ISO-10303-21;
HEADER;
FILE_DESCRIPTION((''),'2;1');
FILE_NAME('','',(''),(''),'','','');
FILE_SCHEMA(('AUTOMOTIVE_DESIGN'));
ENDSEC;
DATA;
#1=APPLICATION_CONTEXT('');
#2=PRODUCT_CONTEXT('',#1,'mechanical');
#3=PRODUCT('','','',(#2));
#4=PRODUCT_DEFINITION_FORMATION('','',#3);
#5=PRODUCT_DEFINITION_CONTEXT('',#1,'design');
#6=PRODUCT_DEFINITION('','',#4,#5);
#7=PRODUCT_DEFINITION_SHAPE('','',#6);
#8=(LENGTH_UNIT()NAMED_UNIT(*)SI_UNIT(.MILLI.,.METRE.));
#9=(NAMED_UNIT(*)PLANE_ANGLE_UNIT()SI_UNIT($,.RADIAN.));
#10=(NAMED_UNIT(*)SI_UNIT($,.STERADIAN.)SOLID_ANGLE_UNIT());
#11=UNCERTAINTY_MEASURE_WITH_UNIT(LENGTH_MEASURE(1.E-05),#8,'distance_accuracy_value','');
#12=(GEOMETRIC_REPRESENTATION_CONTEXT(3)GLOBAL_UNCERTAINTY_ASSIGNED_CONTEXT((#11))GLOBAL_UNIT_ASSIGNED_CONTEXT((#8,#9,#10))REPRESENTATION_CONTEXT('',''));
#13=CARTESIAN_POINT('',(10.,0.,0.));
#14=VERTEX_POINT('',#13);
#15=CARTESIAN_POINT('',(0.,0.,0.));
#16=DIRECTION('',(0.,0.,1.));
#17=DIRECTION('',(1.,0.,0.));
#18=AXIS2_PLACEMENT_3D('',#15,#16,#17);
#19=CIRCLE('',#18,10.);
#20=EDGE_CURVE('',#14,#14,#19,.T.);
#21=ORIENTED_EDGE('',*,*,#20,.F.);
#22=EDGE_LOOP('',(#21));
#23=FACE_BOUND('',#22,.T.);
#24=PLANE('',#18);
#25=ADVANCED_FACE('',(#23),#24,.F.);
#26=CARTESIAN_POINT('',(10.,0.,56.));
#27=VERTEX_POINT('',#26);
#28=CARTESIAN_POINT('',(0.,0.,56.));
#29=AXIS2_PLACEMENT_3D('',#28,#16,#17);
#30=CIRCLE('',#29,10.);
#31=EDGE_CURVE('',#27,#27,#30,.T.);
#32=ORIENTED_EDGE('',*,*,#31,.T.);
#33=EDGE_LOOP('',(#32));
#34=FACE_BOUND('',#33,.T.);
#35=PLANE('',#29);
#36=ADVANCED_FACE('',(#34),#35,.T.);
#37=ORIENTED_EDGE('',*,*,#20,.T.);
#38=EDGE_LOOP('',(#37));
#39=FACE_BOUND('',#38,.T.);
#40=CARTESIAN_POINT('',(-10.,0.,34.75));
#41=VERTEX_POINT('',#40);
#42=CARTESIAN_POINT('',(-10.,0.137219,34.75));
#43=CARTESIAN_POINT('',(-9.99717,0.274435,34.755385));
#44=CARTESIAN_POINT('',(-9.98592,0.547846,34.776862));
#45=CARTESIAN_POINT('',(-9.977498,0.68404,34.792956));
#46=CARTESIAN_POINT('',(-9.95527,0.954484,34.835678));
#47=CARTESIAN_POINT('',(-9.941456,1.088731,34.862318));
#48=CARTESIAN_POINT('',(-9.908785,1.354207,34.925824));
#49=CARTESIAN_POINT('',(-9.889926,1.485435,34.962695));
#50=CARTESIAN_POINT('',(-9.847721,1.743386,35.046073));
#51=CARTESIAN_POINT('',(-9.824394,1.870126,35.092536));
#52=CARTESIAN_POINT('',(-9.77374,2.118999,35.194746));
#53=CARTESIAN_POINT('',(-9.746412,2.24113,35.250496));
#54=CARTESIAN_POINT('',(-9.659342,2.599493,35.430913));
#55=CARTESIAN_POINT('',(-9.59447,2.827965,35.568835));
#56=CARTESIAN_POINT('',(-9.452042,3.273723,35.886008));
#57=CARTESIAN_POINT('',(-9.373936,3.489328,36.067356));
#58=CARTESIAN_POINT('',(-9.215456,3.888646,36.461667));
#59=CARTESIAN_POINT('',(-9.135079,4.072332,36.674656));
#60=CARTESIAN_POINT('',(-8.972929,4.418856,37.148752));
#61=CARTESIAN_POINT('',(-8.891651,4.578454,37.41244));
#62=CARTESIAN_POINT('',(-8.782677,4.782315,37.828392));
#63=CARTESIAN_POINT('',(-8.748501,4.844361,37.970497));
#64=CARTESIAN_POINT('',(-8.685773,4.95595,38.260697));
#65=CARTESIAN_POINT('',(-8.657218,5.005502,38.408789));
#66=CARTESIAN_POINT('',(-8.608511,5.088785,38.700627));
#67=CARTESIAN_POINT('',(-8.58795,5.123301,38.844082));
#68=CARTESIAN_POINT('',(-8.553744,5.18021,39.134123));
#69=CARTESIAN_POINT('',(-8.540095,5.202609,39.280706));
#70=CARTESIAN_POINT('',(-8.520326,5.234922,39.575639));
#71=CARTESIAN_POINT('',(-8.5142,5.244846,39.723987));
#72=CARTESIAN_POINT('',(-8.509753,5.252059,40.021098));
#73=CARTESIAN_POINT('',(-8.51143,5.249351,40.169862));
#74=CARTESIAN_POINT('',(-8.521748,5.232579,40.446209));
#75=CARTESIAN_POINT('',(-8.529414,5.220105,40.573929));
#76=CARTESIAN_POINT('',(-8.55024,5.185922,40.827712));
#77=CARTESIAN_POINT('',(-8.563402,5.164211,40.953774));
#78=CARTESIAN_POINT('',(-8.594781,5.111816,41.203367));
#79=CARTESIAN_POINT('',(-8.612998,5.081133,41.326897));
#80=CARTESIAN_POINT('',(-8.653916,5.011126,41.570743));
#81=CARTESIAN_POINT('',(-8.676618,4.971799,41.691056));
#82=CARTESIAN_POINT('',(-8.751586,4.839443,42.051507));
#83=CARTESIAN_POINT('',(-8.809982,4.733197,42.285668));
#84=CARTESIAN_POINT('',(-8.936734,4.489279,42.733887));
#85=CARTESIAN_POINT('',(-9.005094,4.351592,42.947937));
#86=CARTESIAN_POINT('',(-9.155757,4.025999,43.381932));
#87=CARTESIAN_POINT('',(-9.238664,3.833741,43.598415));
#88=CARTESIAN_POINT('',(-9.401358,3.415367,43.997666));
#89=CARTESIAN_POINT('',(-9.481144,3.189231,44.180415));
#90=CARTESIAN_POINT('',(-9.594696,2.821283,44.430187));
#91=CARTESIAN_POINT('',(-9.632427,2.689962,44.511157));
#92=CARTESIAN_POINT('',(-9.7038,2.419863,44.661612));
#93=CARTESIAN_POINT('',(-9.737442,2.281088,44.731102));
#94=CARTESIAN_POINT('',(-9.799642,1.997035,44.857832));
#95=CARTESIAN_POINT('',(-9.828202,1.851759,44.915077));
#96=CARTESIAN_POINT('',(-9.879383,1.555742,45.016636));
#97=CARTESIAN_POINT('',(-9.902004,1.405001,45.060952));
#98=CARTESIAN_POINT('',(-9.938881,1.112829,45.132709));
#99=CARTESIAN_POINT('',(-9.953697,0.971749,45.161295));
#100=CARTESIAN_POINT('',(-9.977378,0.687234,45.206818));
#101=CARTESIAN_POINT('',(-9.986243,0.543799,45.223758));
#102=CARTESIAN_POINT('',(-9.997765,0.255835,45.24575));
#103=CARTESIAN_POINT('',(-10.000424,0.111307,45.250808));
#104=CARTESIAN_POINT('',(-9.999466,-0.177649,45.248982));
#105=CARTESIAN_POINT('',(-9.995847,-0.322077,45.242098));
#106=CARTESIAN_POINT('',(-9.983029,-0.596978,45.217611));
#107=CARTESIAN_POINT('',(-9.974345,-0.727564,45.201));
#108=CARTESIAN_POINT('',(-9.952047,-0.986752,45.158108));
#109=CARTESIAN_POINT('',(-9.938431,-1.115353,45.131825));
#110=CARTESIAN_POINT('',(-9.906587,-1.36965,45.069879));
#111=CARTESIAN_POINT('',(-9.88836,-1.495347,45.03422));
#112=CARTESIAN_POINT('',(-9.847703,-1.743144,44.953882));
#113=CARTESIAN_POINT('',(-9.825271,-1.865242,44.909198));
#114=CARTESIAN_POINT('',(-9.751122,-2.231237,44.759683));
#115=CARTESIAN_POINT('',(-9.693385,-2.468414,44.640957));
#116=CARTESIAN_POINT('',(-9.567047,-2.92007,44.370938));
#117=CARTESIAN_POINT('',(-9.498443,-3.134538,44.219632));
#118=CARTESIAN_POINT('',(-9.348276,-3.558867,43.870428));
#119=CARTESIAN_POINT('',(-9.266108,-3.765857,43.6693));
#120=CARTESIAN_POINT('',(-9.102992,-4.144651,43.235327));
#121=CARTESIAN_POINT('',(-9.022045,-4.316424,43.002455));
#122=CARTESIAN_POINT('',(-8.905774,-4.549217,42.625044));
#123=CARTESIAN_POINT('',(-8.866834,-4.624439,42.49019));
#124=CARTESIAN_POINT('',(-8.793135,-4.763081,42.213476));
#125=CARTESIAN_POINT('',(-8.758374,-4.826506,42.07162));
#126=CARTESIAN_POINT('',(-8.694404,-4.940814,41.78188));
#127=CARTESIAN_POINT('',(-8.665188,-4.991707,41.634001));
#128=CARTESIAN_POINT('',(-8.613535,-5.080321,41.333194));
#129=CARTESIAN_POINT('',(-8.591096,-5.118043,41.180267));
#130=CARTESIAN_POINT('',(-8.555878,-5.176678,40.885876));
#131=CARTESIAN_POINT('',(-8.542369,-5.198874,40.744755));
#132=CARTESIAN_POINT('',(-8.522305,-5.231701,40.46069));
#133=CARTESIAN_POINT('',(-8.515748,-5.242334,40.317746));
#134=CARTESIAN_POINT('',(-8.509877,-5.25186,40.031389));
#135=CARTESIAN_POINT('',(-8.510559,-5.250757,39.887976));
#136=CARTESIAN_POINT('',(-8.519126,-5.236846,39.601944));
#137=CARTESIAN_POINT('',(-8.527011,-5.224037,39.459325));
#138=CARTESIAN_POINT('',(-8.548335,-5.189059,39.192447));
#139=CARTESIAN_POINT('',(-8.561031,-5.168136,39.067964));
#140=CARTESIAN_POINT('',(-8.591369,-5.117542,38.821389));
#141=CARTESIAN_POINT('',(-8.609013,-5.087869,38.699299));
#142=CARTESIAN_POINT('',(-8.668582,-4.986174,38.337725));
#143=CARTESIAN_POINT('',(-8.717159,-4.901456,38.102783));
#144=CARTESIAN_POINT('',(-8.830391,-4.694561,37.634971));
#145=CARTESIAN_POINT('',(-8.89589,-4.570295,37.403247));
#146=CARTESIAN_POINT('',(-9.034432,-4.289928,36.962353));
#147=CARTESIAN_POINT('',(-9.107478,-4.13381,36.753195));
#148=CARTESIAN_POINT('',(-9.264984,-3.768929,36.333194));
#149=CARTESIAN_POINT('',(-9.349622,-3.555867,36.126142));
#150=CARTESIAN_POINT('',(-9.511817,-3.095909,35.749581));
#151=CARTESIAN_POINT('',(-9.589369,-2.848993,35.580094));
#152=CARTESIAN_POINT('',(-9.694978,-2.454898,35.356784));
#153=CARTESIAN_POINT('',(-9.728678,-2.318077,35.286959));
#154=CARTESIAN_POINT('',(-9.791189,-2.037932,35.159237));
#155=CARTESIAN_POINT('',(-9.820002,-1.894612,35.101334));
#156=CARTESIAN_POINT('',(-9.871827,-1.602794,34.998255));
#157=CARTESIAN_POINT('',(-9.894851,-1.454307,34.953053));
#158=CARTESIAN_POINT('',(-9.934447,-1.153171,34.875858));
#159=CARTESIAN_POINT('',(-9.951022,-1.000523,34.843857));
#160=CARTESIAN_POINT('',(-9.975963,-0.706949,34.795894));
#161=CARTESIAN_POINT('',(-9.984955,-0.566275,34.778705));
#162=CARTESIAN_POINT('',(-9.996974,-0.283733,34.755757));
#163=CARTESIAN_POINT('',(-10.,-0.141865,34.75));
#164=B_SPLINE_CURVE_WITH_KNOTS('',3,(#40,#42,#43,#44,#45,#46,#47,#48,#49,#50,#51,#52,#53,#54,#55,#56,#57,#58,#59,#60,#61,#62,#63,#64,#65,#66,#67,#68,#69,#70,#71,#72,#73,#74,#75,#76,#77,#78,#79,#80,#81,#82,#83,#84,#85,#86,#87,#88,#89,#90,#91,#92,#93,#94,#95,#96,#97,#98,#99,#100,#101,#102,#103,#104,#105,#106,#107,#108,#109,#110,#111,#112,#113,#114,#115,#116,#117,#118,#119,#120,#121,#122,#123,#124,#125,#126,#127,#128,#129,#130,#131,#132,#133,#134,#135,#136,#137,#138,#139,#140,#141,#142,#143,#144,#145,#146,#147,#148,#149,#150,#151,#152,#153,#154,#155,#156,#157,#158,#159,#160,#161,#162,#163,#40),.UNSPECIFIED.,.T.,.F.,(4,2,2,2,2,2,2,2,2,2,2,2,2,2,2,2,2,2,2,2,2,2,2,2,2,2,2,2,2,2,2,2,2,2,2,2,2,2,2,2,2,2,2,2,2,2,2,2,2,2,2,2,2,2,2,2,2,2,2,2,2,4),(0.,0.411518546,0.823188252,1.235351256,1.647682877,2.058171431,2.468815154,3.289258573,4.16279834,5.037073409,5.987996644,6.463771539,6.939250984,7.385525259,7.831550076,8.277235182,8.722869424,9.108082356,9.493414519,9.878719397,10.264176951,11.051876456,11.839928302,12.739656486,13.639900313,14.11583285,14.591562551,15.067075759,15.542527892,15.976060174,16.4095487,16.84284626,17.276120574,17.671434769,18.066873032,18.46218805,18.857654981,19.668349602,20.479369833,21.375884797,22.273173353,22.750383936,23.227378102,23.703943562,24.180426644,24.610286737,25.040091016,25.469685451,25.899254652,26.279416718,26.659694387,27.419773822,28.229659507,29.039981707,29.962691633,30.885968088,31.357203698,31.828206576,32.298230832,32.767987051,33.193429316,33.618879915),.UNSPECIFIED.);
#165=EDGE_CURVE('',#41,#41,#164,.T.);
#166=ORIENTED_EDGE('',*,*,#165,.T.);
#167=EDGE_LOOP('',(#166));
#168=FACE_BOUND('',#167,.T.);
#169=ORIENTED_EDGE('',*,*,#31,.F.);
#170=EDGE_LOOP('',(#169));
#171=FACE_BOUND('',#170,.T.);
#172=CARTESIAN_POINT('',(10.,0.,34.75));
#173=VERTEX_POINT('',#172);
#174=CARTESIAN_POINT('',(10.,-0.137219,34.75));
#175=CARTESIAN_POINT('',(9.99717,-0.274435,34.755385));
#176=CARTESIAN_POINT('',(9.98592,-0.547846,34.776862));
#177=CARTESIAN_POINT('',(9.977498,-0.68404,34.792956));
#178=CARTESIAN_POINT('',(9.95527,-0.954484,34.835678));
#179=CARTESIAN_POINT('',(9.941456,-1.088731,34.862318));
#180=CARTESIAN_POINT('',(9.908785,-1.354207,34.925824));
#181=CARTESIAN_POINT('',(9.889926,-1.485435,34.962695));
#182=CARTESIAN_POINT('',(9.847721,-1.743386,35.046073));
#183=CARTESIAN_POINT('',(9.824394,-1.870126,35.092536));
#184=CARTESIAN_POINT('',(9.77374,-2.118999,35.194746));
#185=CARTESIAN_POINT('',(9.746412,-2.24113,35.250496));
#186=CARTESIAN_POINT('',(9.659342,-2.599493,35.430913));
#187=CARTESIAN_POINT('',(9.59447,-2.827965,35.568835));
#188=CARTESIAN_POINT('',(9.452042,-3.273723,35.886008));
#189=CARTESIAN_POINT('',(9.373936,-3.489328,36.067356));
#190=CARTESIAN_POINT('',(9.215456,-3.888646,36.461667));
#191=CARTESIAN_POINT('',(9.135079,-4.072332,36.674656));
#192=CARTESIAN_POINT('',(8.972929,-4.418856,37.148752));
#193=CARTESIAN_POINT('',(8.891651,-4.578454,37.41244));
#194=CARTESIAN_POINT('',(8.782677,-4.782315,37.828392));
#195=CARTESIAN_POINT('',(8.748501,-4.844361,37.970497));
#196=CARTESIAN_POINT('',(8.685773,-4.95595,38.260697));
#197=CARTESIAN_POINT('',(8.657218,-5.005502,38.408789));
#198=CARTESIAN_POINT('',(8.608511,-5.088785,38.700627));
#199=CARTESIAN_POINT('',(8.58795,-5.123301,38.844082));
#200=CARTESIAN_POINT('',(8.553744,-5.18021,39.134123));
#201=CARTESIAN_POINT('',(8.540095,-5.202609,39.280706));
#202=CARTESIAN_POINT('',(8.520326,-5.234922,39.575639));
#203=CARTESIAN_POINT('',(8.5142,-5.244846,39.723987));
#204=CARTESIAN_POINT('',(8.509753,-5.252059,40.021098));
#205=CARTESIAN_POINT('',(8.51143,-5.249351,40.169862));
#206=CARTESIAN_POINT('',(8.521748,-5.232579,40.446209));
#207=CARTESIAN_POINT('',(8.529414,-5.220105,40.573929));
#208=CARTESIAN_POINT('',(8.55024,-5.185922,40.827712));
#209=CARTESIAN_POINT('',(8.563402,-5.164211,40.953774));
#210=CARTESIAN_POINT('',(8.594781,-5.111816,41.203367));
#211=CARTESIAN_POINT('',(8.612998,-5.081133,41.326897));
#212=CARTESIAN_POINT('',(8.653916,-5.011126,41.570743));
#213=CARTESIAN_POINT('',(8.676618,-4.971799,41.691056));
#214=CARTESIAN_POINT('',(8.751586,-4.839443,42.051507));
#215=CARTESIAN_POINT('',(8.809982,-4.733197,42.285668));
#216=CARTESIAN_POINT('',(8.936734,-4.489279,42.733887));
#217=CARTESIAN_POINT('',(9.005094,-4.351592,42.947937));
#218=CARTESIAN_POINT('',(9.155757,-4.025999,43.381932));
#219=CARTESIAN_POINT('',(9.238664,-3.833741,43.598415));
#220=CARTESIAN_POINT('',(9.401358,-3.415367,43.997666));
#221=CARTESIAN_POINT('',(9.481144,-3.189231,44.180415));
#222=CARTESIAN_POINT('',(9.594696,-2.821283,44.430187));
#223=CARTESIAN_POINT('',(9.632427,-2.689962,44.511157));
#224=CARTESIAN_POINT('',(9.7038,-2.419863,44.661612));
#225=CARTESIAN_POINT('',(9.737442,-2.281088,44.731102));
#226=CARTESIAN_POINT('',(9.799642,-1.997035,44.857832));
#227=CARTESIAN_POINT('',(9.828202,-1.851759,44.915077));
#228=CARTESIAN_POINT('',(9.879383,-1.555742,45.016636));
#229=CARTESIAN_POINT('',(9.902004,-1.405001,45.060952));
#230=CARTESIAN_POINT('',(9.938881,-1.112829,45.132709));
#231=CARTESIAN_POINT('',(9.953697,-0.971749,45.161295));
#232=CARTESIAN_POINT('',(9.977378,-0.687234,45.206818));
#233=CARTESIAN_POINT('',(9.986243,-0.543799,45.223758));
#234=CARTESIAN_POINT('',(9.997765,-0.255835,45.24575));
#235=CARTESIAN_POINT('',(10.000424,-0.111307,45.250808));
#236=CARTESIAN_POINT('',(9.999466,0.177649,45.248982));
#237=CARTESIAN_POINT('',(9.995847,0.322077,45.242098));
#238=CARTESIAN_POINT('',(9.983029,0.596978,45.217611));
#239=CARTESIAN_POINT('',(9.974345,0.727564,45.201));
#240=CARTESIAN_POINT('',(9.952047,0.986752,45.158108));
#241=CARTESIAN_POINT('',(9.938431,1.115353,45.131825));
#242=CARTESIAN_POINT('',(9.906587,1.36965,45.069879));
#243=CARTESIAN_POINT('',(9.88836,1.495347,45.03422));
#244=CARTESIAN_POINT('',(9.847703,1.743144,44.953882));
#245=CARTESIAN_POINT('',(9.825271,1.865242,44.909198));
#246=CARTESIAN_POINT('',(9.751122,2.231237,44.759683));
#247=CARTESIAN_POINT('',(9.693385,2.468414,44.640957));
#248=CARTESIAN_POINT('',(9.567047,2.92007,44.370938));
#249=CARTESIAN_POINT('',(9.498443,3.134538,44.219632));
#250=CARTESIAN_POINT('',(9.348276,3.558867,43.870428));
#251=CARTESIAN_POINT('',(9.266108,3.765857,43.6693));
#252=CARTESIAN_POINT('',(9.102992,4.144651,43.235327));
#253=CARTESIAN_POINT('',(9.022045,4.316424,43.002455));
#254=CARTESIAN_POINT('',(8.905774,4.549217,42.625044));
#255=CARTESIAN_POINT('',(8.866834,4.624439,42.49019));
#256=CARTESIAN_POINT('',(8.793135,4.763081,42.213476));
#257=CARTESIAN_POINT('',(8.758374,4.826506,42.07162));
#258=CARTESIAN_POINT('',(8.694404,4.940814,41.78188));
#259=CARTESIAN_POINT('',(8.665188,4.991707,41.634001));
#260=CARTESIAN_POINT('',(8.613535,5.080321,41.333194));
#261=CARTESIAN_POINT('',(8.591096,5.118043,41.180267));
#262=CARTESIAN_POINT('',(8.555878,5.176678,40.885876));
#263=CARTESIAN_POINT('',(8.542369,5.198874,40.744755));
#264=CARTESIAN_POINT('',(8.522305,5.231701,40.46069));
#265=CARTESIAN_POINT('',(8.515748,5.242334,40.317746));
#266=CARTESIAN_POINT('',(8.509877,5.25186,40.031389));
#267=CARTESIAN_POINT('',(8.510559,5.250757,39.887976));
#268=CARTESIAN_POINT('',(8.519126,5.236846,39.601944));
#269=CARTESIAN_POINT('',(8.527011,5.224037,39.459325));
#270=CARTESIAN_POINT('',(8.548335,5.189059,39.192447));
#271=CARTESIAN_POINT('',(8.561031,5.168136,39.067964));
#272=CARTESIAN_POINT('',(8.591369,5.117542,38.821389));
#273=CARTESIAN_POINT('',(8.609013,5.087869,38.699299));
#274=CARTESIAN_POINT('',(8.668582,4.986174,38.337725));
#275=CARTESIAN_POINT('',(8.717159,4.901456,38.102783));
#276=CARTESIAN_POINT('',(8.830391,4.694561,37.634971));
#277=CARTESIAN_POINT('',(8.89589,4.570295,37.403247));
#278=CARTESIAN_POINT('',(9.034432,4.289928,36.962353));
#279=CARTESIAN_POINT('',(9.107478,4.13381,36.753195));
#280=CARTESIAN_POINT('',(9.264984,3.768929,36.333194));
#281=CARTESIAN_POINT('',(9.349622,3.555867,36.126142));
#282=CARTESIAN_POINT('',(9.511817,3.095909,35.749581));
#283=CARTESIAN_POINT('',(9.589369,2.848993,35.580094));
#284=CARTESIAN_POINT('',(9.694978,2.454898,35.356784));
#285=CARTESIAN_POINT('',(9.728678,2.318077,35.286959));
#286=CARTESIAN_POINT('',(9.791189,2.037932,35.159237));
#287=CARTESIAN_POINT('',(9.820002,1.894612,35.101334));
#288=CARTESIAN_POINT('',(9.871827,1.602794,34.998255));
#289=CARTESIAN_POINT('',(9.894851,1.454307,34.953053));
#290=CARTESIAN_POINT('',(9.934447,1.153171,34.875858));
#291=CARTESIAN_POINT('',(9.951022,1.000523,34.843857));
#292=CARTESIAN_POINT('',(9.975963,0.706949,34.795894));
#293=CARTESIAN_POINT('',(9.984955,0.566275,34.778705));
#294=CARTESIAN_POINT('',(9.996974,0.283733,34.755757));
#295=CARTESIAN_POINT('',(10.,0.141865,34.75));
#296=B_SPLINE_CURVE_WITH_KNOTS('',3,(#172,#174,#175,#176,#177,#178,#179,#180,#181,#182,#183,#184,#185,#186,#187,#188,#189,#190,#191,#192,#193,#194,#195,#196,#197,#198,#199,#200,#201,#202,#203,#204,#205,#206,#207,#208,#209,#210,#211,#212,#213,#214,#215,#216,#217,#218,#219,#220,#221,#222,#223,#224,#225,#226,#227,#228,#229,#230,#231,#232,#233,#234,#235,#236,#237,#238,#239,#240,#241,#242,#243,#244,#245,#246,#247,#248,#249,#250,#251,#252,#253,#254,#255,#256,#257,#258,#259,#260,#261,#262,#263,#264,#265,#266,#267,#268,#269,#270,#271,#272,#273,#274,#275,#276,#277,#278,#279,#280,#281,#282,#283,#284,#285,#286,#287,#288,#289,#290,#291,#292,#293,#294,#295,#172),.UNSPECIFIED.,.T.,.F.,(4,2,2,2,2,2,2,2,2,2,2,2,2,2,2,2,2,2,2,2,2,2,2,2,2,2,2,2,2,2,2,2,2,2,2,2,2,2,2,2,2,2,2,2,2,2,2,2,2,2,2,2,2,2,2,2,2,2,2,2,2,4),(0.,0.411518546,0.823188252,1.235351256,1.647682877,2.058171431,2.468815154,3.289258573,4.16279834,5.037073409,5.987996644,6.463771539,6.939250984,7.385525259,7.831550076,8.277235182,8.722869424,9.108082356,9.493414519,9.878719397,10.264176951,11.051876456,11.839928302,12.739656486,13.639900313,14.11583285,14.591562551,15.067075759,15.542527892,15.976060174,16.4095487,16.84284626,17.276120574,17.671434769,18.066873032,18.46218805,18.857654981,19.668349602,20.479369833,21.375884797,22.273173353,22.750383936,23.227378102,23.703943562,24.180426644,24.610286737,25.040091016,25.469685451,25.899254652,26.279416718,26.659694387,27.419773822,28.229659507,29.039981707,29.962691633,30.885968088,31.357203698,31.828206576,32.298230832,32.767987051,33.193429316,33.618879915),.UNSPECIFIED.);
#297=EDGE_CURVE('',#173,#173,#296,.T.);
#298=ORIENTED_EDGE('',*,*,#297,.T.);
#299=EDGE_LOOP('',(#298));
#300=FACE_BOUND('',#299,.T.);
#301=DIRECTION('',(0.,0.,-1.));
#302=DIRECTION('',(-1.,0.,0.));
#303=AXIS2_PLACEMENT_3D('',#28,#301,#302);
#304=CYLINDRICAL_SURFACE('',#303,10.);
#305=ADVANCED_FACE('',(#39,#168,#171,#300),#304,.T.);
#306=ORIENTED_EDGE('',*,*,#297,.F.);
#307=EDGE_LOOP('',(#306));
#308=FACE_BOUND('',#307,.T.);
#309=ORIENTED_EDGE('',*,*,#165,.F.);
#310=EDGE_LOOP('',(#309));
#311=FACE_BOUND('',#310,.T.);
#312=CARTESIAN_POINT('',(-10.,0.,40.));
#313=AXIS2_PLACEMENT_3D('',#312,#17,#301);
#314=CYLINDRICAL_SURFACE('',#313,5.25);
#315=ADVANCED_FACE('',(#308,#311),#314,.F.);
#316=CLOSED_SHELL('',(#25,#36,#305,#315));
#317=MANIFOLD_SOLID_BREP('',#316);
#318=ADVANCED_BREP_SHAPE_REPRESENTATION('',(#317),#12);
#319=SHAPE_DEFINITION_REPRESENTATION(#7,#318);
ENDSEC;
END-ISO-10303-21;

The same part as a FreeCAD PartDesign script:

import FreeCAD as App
import Part
import Sketcher

V = App.Vector

doc = App.newDocument("Part")
body = doc.addObject("PartDesign::Body", "Body")

sketch1 = body.newObject("Sketcher::SketchObject", "Sketch")
sketch1.AttachmentSupport = (doc.getObject("XY_Plane"), [""])
sketch1.MapMode = "FlatFace"
sketch1.addGeometry(Part.Circle(V(0, 0, 0), V(0, 0, 1), 10), False)
sketch1.addConstraint(Sketcher.Constraint("Coincident", 0, 3, -1, 1))
sketch1.addConstraint(Sketcher.Constraint("Diameter", 0, 20.0))
pad1 = body.newObject("PartDesign::Pad", "Pad")
pad1.Profile = sketch1
pad1.Length = 56

sketch2 = body.newObject("Sketcher::SketchObject", "Sketch001")
sketch2.AttachmentSupport = (doc.getObject("YZ_Plane"), [""])
sketch2.MapMode = "FlatFace"
sketch2.addGeometry(Part.Circle(V(0, 40, 0), V(0, 0, 1), 5), False)
sketch2.addConstraint(Sketcher.Constraint("PointOnObject", 0, 3, -2))
sketch2.addConstraint(Sketcher.Constraint("Diameter", 0, 10.5))
sketch2.addConstraint(Sketcher.Constraint("DistanceY", -1, 1, 0, 3, 40.0))
pocket1 = body.newObject("PartDesign::Pocket", "Pocket")
pocket1.Profile = sketch2
pocket1.Type = "ThroughAll"
pocket1.Midplane = True

doc.recompute()
